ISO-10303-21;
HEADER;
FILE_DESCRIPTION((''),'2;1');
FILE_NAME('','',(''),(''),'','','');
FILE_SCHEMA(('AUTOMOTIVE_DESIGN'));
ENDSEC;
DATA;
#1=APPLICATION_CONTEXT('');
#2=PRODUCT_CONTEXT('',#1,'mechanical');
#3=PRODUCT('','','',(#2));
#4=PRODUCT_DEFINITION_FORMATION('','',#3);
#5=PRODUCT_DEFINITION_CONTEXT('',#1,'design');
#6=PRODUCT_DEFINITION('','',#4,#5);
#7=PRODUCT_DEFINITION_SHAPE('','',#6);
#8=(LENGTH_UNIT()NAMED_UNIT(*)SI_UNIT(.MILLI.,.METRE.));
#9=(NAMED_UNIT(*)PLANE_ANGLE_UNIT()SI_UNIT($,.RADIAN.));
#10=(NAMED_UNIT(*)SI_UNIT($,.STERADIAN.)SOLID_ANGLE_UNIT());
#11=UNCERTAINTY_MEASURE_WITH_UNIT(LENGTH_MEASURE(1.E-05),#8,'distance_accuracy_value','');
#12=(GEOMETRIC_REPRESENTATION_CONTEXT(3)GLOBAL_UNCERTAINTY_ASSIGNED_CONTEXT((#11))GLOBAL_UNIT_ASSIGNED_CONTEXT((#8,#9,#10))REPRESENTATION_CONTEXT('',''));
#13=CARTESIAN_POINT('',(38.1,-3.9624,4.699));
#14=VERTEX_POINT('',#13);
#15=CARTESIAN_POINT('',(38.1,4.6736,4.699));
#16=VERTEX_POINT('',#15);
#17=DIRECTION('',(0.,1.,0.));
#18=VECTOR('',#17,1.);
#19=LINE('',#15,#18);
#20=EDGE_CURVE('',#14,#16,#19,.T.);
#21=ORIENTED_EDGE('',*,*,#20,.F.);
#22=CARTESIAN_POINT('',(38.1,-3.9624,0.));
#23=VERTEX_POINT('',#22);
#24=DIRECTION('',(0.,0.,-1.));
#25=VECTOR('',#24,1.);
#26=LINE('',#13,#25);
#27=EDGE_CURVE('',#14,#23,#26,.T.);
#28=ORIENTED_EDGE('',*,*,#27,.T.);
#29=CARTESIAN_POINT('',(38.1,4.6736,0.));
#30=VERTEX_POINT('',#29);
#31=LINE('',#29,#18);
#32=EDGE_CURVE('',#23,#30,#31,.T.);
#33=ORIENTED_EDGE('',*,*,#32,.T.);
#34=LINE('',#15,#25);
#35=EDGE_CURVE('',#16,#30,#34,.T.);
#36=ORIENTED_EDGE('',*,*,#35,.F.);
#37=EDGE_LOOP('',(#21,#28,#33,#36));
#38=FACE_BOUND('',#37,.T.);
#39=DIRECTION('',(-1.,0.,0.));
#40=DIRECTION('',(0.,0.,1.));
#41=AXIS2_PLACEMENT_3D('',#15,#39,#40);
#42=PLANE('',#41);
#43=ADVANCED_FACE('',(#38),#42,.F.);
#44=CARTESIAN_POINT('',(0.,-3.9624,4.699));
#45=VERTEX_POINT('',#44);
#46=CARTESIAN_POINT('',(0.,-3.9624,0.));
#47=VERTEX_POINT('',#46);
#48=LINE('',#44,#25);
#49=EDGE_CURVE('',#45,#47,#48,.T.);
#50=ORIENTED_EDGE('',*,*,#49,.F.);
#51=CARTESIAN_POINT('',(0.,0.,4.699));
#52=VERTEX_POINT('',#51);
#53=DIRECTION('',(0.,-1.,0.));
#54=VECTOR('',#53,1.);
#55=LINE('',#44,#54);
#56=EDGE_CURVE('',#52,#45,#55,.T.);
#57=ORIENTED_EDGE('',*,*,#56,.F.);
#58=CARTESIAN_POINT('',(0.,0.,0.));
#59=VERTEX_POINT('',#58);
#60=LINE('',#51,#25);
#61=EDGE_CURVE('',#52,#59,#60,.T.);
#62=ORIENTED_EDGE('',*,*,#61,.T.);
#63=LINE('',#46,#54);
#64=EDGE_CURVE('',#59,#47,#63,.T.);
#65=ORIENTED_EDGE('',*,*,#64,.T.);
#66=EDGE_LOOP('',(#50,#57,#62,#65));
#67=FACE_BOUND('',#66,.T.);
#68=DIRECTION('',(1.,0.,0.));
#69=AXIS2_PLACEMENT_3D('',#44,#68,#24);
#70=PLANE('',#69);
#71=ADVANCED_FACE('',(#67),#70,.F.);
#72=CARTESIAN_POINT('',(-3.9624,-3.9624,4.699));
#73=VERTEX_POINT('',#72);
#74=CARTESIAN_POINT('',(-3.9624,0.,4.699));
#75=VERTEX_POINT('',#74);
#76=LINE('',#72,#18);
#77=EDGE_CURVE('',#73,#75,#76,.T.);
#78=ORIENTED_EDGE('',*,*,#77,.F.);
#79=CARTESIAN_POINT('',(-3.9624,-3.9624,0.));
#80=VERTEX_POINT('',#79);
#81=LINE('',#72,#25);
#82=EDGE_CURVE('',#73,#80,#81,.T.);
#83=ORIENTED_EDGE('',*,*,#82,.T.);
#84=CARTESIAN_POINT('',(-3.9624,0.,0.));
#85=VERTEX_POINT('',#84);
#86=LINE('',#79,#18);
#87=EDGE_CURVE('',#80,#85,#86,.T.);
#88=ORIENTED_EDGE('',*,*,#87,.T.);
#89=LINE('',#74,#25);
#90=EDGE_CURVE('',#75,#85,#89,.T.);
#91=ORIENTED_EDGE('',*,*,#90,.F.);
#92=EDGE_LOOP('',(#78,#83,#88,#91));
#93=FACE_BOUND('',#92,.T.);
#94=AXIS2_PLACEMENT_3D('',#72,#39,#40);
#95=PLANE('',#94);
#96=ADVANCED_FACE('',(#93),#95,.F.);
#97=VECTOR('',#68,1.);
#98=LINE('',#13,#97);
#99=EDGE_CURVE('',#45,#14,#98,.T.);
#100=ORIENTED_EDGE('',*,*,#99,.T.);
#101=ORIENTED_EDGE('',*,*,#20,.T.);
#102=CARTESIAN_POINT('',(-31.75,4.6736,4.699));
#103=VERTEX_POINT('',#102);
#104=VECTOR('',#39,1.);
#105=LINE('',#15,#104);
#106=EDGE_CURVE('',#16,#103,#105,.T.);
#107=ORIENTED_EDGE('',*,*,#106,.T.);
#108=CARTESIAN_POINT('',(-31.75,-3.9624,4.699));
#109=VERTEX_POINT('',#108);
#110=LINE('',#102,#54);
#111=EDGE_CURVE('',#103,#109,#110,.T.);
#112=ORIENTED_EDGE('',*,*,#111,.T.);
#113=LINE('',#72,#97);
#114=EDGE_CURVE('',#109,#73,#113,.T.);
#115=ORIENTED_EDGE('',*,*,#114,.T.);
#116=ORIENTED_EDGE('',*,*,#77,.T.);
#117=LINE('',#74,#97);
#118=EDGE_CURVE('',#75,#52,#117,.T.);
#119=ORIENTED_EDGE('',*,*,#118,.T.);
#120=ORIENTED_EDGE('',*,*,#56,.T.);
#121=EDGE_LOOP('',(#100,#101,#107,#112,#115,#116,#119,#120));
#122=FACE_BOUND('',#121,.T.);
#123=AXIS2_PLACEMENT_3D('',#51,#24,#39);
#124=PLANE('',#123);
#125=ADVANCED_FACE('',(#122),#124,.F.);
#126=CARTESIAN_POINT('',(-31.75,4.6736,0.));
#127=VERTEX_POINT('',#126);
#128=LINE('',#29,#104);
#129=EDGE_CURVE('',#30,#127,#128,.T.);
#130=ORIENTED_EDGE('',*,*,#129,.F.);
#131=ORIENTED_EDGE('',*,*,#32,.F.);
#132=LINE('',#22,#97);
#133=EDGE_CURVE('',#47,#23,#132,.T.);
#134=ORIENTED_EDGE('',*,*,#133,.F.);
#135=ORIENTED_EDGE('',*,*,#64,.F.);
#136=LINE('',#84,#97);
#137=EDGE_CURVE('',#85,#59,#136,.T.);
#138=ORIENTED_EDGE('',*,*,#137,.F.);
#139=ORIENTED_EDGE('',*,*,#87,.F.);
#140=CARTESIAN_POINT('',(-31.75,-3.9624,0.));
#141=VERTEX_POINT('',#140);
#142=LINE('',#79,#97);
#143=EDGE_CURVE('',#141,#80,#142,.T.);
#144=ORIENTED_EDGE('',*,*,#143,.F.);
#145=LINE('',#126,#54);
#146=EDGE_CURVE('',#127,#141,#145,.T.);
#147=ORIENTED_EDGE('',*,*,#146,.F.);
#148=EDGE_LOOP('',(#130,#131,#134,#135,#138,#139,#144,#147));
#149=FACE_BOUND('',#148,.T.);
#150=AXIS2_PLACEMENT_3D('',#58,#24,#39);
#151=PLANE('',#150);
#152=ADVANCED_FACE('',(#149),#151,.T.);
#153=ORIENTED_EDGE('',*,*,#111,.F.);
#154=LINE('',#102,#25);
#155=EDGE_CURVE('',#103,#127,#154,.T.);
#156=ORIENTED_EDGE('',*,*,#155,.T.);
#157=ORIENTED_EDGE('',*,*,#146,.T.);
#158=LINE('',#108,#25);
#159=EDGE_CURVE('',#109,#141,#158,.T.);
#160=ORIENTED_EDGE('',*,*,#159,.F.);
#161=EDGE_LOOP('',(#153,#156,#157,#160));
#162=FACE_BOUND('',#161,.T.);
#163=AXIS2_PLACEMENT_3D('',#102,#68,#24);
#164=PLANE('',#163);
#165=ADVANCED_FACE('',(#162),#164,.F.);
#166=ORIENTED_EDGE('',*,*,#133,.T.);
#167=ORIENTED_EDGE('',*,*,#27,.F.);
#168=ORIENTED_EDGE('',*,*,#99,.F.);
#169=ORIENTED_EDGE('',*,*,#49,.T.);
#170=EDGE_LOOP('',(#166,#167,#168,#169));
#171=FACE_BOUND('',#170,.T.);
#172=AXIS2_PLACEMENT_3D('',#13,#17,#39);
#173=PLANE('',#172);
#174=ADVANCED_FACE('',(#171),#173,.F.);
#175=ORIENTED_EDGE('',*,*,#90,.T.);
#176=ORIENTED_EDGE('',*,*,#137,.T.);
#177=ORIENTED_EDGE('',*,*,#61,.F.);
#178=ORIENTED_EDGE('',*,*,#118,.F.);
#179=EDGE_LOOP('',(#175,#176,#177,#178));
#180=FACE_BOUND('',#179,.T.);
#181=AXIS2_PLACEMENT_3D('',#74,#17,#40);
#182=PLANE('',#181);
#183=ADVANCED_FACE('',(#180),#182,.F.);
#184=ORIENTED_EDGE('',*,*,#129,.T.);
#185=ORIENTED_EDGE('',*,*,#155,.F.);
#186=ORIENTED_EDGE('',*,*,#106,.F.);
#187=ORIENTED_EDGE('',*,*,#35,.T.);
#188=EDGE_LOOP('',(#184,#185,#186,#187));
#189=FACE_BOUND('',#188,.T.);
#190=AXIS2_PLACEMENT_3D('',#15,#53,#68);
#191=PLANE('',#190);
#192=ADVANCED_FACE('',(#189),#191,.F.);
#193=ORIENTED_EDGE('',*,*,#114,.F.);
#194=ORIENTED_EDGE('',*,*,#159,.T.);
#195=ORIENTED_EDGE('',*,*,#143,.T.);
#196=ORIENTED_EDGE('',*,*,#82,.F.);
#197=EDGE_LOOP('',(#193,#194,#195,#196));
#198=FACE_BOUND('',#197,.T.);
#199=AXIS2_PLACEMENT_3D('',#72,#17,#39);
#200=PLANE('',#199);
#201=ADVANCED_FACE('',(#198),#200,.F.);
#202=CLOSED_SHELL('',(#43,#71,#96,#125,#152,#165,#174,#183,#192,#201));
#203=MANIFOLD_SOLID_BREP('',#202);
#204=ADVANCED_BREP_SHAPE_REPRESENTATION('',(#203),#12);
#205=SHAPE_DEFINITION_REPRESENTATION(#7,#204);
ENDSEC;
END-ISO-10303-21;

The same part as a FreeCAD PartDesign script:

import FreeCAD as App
import Part
import Sketcher
Q = App.Units.Quantity

doc = App.newDocument("Part")
body = doc.addObject("PartDesign::Body", "Body")

# Sketch on XY plane
sketch1 = doc.addObject("Sketcher::SketchObject", "Sketch")
body.addObject(sketch1)
sketch1.AttachmentSupport = (doc.XY_Plane, [""])
sketch1.MapMode = "FlatFace"
sketch1.addGeometry(Part.LineSegment(App.Vector(-31.8, -4, 0), App.Vector(-4, -4, 0)), False)
sketch1.addGeometry(Part.LineSegment(App.Vector(-4, -4, 0), App.Vector(-4, 0, 0)), False)
sketch1.addGeometry(Part.LineSegment(App.Vector(-4, 0, 0), App.Vector(0, 0, 0)), False)
sketch1.addGeometry(Part.LineSegment(App.Vector(0, 0, 0), App.Vector(0, -4, 0)), False)
sketch1.addGeometry(Part.LineSegment(App.Vector(0, -4, 0), App.Vector(38.1, -4, 0)), False)
sketch1.addGeometry(Part.LineSegment(App.Vector(38.1, -4, 0), App.Vector(38.1, 4.7, 0)), False)
sketch1.addGeometry(Part.LineSegment(App.Vector(38.1, 4.7, 0), App.Vector(-31.8, 4.7, 0)), False)
sketch1.addGeometry(Part.LineSegment(App.Vector(-31.8, 4.7, 0), App.Vector(-31.8, -4, 0)), False)
sketch1.addConstraint(Sketcher.Constraint("Coincident", 0, 2, 1, 1))
sketch1.addConstraint(Sketcher.Constraint("Coincident", 1, 2, 2, 1))
sketch1.addConstraint(Sketcher.Constraint("Coincident", 2, 2, 3, 1))
sketch1.addConstraint(Sketcher.Constraint("Coincident", 3, 2, 4, 1))
sketch1.addConstraint(Sketcher.Constraint("Coincident", 4, 2, 5, 1))
sketch1.addConstraint(Sketcher.Constraint("Coincident", 5, 2, 6, 1))
sketch1.addConstraint(Sketcher.Constraint("Coincident", 6, 2, 7, 1))
sketch1.addConstraint(Sketcher.Constraint("Coincident", 7, 2, 0, 1))
sketch1.addConstraint(Sketcher.Constraint("Horizontal", 0))
sketch1.addConstraint(Sketcher.Constraint("Vertical", 1))
sketch1.addConstraint(Sketcher.Constraint("Horizontal", 2))
sketch1.addConstraint(Sketcher.Constraint("Vertical", 3))
sketch1.addConstraint(Sketcher.Constraint("Horizontal", 4))
sketch1.addConstraint(Sketcher.Constraint("Vertical", 5))
sketch1.addConstraint(Sketcher.Constraint("Horizontal", 6))
sketch1.addConstraint(Sketcher.Constraint("Vertical", 7))
sketch1.addConstraint(Sketcher.Constraint("Coincident", 2, 2, -1, 1))
sketch1.addConstraint(Sketcher.Constraint("Horizontal", 0, 2, 3, 2))
sketch1.addConstraint(Sketcher.Constraint("Equal", 2, 1))
sketch1.addConstraint(Sketcher.Constraint("DistanceX", 4, 1, 4, 2, Q("1.5 in")))
sketch1.addConstraint(Sketcher.Constraint("DistanceX", 6, 2, 6, 1, Q("2.75 in")))
sketch1.addConstraint(Sketcher.Constraint("DistanceY", 5, 1, 5, 2, Q("0.34 in")))
sketch1.addConstraint(Sketcher.Constraint("DistanceX", 0, 1, 0, 2, Q("1.094 in")))
pad1 = doc.addObject("PartDesign::Pad", "Pad")
body.addObject(pad1)
pad1.Profile = sketch1
pad1.Length = Q("0.185 in")

doc.recompute()
